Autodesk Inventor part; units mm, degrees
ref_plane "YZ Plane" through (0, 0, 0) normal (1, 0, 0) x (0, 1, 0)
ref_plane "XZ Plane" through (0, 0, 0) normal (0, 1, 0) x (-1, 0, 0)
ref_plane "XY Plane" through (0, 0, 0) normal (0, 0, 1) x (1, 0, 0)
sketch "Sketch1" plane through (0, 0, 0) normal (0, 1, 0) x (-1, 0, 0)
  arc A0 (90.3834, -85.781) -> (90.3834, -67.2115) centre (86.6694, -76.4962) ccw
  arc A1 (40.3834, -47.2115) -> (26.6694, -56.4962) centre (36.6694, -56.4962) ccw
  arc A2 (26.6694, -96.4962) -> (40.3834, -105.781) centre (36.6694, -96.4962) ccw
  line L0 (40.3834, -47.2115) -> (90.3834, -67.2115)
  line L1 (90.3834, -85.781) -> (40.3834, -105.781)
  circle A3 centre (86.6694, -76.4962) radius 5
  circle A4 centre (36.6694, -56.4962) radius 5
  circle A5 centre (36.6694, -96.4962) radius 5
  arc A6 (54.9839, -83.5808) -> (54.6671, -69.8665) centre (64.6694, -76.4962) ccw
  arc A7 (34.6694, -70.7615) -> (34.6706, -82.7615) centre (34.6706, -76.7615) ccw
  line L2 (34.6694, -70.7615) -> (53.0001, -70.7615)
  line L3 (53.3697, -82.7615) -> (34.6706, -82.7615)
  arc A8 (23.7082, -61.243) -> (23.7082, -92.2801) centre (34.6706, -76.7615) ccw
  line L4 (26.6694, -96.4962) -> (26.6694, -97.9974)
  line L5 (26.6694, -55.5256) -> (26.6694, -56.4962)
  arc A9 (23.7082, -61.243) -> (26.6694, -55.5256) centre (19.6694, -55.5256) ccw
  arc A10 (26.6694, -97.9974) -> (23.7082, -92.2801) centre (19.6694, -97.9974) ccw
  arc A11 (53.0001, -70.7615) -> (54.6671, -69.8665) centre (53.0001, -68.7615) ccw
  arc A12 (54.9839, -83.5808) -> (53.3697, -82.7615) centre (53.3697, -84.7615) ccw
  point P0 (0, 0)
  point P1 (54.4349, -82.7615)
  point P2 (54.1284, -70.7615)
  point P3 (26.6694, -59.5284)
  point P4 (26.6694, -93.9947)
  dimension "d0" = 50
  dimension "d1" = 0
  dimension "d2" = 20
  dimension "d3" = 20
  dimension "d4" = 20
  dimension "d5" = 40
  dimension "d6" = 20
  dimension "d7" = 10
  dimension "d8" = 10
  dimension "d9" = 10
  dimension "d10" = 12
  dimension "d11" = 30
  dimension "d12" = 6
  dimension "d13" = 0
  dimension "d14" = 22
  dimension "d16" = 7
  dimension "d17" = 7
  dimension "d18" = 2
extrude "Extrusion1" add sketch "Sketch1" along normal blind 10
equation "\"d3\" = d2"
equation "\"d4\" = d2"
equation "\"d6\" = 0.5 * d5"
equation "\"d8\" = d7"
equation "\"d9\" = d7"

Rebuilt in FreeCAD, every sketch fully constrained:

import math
import FreeCAD as App
import Part
import Sketcher

V = App.Vector
Q = App.Units.Quantity

doc = App.newDocument("Part")
body = doc.addObject("PartDesign::Body", "Body")

# Sketch on XZ plane
sketch1 = body.newObject("Sketcher::SketchObject", "Sketch")
sketch1.AttachmentSupport = (doc.getObject("XZ_Plane"), [""])
sketch1.MapMode = "FlatFace"
sketch1.addGeometry([
    Part.LineSegment(V(-40.3834, -105.781, 0), V(-90.3834, -85.781, 0)),  # 0
    Part.ArcOfCircle(Part.Circle(V(-86.6694, -76.4962, 0), V(0, 0, 1), 10.000065), math.radians(111.802048), math.radians(248.198165)),  # 1
    Part.LineSegment(V(-90.3834, -67.2115, 0), V(-40.3834, -47.2115, 0)),  # 2
    Part.ArcOfCircle(Part.Circle(V(-36.6694, -56.4962, 0), V(0, 0, 1), 9.999973), math.radians(0), math.radians(111.802048)),  # 3
    Part.LineSegment(V(-26.6694, -56.4962, 0), V(-26.6694, -55.5256, 0)),  # 4
    Part.ArcOfCircle(Part.Circle(V(-19.6694, -55.5256, 0), V(0, 0, 1), 7.000041), math.radians(180), math.radians(234.762425)),  # 5
    Part.ArcOfCircle(Part.Circle(V(-34.6706, -76.7615, 0), V(0, 0, 1), 18.999949), math.radians(-54.762466), math.radians(54.762292)),  # 6
    Part.ArcOfCircle(Part.Circle(V(-19.6694, -97.9974, 0), V(0, 0, 1), 7), math.radians(125.238047), math.radians(180)),  # 7
    Part.LineSegment(V(-26.6694, -97.9974, 0), V(-26.6694, -96.4962, 0)),  # 8
    Part.ArcOfCircle(Part.Circle(V(-36.6694, -96.4962, 0), V(0, 0, 1), 10), math.radians(-111.801835), math.radians(0)),  # 9
    Part.Circle(V(-36.6694, -96.4962, 0), V(0, 0, 1), 5),  # 10
    Part.ArcOfCircle(Part.Circle(V(-64.6694, -76.4962, 0), V(0, 0, 1), 12.000019), math.radians(33.537116), math.radians(323.815853)),  # 11
    Part.ArcOfCircle(Part.Circle(V(-53.3697, -84.7615, 0), V(0, 0, 1), 1.999924), math.radians(90), math.radians(143.816548)),  # 12
    Part.LineSegment(V(-53.3697, -82.7615, 0), V(-34.6706, -82.7615, 0)),  # 13
    Part.ArcOfCircle(Part.Circle(V(-34.6706, -76.7615, 0), V(0, 0, 1), 6), math.radians(-90), math.radians(89.988541)),  # 14
    Part.LineSegment(V(-34.6694, -70.7615, 0), V(-53.0001, -70.7615, 0)),  # 15
    Part.ArcOfCircle(Part.Circle(V(-53.0001, -68.7615, 0), V(0, 0, 1), 2), math.radians(-146.460899), math.radians(-90)),  # 16
    Part.Circle(V(-36.6694, -56.4962, 0), V(0, 0, 1), 5),  # 17
    Part.Circle(V(-86.6694, -76.4962, 0), V(0, 0, 1), 5),  # 18
], False)
sketch1.addConstraint([
    Sketcher.Constraint("Coincident", 0, 2, 1, 2),
    Sketcher.Constraint("Coincident", 1, 1, 2, 1),
    Sketcher.Constraint("Coincident", 2, 2, 3, 2),
    Sketcher.Constraint("Coincident", 3, 1, 4, 1),
    Sketcher.Constraint("Coincident", 4, 2, 5, 1),
    Sketcher.Constraint("Coincident", 5, 2, 6, 2),
    Sketcher.Constraint("Coincident", 6, 1, 7, 1),
    Sketcher.Constraint("Coincident", 7, 2, 8, 1),
    Sketcher.Constraint("Coincident", 8, 2, 9, 2),
    Sketcher.Constraint("Coincident", 9, 1, 0, 1),
    Sketcher.Constraint("Coincident", 11, 2, 12, 2),
    Sketcher.Constraint("Coincident", 12, 1, 13, 1),
    Sketcher.Constraint("Coincident", 13, 2, 14, 1),
    Sketcher.Constraint("Coincident", 14, 2, 15, 1),
    Sketcher.Constraint("Coincident", 15, 2, 16, 2),
    Sketcher.Constraint("Coincident", 16, 1, 11, 1),
    Sketcher.Constraint("Vertical", 4),
    Sketcher.Constraint("Vertical", 8),
    Sketcher.Constraint("Horizontal", 13),
    Sketcher.Constraint("Horizontal", 15),
    Sketcher.Constraint("Coincident", 10, 3, 9, 3),
    Sketcher.Constraint("Coincident", 14, 3, 6, 3),
    Sketcher.Constraint("Coincident", 17, 3, 3, 3),
    Sketcher.Constraint("Coincident", 18, 3, 1, 3),
    Sketcher.Constraint("Diameter", 10, Q("10 mm")),
    Sketcher.Constraint("Diameter", 17, Q("10 mm")),
    Sketcher.Constraint("Diameter", 18, Q("10 mm")),
    Sketcher.Constraint("Radius", 1, Q("10 mm")),
    Sketcher.Constraint("Radius", 3, Q("10 mm")),
    Sketcher.Constraint("Radius", 5, Q("7 mm")),
    Sketcher.Constraint("Radius", 7, Q("7 mm")),
    Sketcher.Constraint("Radius", 9, Q("10 mm")),
    Sketcher.Constraint("Radius", 11, Q("12 mm")),
    Sketcher.Constraint("Radius", 12, Q("2 mm")),
    Sketcher.Constraint("Radius", 14, Q("6 mm")),
    Sketcher.Constraint("Radius", 16, Q("2 mm")),
    Sketcher.Constraint("Radius", 6, Q("19 mm")),
    Sketcher.Constraint("DistanceX", 1, 3, 3, 3, Q("50 mm")),
    Sketcher.Constraint("DistanceY", 1, 3, 3, 3, Q("20 mm")),
    Sketcher.Constraint("DistanceY", 9, 3, 3, 3, Q("40 mm")),
    Sketcher.Constraint("DistanceX", 1, 3, 9, 3, Q("50 mm")),
    Sketcher.Constraint("DistanceX", 1, 3, 11, 3, Q("22 mm")),
    Sketcher.Constraint("DistanceY", 11, 3, 3, 3, Q("20 mm")),
    Sketcher.Constraint("DistanceX", 3, 3, 14, 2, Q("2 mm")),
    Sketcher.Constraint("DistanceX", 16, 3, -1, 1, Q("53 mm")),
    Sketcher.Constraint("DistanceX", 15, 2, -1, 1, Q("53 mm")),
    Sketcher.Constraint("DistanceX", 13, 1, 13, 2, Q("18.699 mm")),
    Sketcher.Constraint("DistanceY", 6, 1, -1, 1, Q("92.28 mm")),
    Sketcher.Constraint("DistanceY", 16, 3, 1, 1, Q("1.55 mm")),
    Sketcher.Constraint("DistanceY", 16, 3, 2, 2, Q("21.55 mm")),
    Sketcher.Constraint("DistanceX", 15, 2, 15, 1, Q("18.3307 mm")),
    Sketcher.Constraint("DistanceY", 4, 1, 4, 2, Q("0.9706 mm")),
    Sketcher.Constraint("DistanceY", 8, 1, 8, 2, Q("1.5012 mm")),
    Sketcher.Constraint("DistanceY", 0, 2, -1, 1, Q("85.781 mm")),
    Sketcher.Constraint("DistanceY", 5, 2, -1, 1, Q("61.243 mm")),
    Sketcher.Constraint("DistanceY", 9, 1, -1, 1, Q("105.781 mm")),
    Sketcher.Constraint("DistanceX", 11, 2, -1, 1, Q("54.984 mm")),
    Sketcher.Constraint("DistanceX", 16, 1, -1, 1, Q("54.667 mm")),
    Sketcher.Constraint("DistanceY", 6, 3, 5, 3, Q("21.236 mm")),
    Sketcher.Constraint("DistanceX", 0, 2, 1, 3, Q("3.714 mm")),
    Sketcher.Constraint("DistanceY", 4, 2, 2, 2, Q("8.314 mm")),
    Sketcher.Constraint("DistanceY", 7, 2, 6, 3, Q("21.236 mm")),
    Sketcher.Constraint("DistanceX", 12, 1, 6, 3, Q("18.699 mm")),
])
pad1 = body.newObject("PartDesign::Pad", "Pad")
pad1.Profile = sketch1
pad1.Length = 10
pad1.Reversed = True

doc.recompute()
